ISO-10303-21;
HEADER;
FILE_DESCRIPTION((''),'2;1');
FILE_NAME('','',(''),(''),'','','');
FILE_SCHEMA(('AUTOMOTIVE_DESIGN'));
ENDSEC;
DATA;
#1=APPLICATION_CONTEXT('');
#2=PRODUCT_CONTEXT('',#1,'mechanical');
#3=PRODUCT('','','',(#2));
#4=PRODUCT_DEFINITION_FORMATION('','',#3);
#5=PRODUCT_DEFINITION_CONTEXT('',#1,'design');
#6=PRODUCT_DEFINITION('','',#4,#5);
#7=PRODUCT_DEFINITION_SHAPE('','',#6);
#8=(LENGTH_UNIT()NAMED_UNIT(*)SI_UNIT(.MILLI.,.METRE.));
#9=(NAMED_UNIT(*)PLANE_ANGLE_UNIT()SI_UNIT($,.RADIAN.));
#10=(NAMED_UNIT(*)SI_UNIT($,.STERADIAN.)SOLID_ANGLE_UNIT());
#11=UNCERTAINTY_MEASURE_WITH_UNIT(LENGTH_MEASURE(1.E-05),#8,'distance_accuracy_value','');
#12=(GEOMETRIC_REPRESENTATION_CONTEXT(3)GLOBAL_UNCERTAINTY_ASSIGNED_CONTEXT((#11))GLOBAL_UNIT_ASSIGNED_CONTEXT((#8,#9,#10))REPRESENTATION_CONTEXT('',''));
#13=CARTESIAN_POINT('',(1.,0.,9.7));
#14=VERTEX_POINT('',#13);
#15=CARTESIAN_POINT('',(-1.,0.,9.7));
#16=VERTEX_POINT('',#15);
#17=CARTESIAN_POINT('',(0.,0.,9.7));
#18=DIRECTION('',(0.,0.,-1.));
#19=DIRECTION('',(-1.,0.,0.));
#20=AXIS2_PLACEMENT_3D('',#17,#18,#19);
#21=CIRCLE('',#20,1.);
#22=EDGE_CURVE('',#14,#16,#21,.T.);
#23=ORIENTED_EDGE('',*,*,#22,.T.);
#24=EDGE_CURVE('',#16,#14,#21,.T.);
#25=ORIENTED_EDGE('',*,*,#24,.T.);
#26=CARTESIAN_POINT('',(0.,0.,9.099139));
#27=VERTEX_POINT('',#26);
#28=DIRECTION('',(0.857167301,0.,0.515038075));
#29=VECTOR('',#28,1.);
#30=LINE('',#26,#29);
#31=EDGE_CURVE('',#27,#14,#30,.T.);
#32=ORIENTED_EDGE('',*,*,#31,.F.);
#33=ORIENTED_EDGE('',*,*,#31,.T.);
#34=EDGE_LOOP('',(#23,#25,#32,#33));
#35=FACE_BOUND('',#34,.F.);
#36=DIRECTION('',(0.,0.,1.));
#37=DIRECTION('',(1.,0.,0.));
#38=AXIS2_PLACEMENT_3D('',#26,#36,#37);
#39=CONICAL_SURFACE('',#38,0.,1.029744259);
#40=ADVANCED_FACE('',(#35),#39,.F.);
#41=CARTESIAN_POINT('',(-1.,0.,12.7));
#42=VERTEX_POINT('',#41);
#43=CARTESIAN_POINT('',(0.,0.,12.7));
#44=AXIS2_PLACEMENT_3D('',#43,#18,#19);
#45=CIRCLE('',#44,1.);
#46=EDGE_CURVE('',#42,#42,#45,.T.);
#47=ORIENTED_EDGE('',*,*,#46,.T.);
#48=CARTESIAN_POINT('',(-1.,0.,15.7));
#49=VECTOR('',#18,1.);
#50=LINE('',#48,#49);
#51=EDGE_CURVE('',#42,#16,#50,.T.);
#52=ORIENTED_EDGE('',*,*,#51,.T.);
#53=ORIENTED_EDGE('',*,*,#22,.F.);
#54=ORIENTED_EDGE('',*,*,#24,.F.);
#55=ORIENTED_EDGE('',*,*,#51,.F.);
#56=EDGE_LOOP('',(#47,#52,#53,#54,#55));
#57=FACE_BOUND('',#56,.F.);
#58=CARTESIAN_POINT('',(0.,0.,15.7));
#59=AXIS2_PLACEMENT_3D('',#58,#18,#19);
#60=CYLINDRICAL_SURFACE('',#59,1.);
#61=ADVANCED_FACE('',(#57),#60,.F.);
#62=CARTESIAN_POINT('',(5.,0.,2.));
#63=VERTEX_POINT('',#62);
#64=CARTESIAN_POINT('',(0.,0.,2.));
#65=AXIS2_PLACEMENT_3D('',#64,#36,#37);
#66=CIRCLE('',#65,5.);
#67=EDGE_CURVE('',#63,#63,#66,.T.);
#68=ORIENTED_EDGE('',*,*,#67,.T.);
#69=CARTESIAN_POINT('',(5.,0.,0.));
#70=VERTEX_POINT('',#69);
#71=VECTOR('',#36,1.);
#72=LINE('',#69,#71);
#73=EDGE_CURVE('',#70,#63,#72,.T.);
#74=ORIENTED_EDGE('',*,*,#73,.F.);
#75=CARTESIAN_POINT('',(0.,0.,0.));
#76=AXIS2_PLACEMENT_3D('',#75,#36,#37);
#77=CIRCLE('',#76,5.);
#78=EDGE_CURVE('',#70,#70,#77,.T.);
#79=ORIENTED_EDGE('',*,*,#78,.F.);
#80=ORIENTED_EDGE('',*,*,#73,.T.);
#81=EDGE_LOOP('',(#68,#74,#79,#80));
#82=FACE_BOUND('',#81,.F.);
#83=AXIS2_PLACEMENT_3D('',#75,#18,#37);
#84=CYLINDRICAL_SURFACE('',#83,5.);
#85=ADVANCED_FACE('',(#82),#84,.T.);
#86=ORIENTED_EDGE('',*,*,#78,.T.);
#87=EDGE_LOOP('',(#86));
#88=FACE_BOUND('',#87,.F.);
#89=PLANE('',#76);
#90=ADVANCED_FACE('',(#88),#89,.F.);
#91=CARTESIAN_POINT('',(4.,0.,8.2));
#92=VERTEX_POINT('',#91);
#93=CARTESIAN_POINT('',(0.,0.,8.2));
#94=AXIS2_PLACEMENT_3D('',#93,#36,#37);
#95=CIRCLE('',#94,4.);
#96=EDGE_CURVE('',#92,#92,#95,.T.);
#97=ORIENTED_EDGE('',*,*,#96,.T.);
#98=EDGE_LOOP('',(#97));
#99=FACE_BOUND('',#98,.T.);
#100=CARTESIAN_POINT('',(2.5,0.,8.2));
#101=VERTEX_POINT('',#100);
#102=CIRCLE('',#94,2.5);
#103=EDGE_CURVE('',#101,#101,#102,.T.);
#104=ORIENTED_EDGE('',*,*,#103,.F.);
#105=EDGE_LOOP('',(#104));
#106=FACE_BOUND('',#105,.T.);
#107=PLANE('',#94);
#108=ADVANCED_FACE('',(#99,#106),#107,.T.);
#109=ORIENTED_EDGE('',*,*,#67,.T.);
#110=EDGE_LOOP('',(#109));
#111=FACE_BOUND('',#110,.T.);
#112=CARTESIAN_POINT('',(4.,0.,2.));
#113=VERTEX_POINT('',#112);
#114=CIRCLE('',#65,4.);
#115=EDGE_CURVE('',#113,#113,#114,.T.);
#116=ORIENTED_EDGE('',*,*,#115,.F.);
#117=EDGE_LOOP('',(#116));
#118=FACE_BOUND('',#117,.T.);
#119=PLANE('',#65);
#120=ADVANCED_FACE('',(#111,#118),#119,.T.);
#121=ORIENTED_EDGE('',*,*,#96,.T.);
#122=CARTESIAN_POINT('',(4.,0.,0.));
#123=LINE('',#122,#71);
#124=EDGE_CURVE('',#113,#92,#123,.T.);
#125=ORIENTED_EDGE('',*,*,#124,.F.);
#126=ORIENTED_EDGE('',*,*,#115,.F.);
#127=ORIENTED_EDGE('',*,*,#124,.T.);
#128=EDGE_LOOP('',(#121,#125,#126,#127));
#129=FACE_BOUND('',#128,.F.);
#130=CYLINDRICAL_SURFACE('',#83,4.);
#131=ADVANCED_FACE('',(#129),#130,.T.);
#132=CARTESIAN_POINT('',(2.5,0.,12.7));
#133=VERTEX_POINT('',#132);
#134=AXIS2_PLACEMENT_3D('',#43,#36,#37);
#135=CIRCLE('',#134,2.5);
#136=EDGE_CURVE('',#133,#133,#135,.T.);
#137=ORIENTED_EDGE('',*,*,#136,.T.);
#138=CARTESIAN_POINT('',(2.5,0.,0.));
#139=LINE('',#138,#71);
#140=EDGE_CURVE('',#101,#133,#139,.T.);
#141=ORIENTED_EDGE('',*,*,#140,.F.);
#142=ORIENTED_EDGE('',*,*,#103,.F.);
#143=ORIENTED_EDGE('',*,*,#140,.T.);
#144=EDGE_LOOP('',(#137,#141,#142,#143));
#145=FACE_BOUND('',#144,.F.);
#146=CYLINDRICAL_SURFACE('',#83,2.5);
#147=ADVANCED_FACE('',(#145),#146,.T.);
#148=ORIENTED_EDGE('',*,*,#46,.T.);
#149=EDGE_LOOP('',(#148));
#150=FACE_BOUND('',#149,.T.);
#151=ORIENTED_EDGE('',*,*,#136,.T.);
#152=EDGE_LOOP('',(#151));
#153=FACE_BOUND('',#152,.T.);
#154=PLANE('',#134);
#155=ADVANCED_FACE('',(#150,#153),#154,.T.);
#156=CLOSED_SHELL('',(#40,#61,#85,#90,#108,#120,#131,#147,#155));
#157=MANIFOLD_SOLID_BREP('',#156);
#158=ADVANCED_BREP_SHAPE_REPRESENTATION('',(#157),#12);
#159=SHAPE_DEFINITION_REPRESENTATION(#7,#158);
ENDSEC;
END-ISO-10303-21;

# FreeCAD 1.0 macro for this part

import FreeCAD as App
import Part
import Sketcher

doc = App.newDocument("Part")
params = doc.addObject("Spreadsheet::Sheet", "Params")
for row, (alias, value) in enumerate([
    ("sketch1_diameter", "5 mm"),
    ("pad1_length", "12.7 mm"),
    ("sketch2_diameter", "8 mm"),
    ("sketch2_diameter2", "5 mm"),
    ("pad2_length", "8.2 mm"),
    ("sketch3_diameter", "10 mm"),
    ("sketch3_diameter2", "8 mm"),
    ("pad3_length", "2 mm"),
    ("sketch4_diameter", "2 mm"),
    ("hole_diameter", "2 mm"),
    ("hole_depth", "3 mm"),
], start=1):
    params.set(f"A{row}", alias)
    params.set(f"B{row}", "=" + value)
    params.setAlias(f"B{row}", alias)

body = doc.addObject("PartDesign::Body", "Body")

# Sketch on XY plane
sketch1 = body.newObject("Sketcher::SketchObject", "Sketch")
sketch1.AttachmentSupport = (doc.getObject("XY_Plane"), [""])
sketch1.MapMode = "FlatFace"
sketch1.addGeometry(Part.Circle(App.Vector(0, 0, 0), App.Vector(0, 0, 1), 2.5), False)
sketch1.addConstraint(Sketcher.Constraint("Coincident", 0, 3, -1, 1))
sketch1.addConstraint(Sketcher.Constraint("Diameter", 0, 5.0))
sketch1.setExpression("Constraints[1]", "Params.sketch1_diameter")
pad1 = body.newObject("PartDesign::Pad", "Pad")
pad1.Profile = sketch1
pad1.setExpression("Length", "Params.pad1_length")

# Sketch on XY plane
sketch2 = body.newObject("Sketcher::SketchObject", "Sketch001")
sketch2.AttachmentSupport = (doc.getObject("XY_Plane"), [""])
sketch2.MapMode = "FlatFace"
sketch2.addGeometry(Part.Circle(App.Vector(0, 0, 0), App.Vector(0, 0, 1), 4), False)
sketch2.addGeometry(Part.Circle(App.Vector(0, 0, 0), App.Vector(0, 0, 1), 2.5), False)
sketch2.addConstraint(Sketcher.Constraint("Coincident", 0, 3, -1, 1))
sketch2.addConstraint(Sketcher.Constraint("Coincident", 1, 3, -1, 1))
sketch2.addConstraint(Sketcher.Constraint("Diameter", 0, 8.0))
sketch2.addConstraint(Sketcher.Constraint("Diameter", 1, 5.0))
sketch2.setExpression("Constraints[2]", "Params.sketch2_diameter")
sketch2.setExpression("Constraints[3]", "Params.sketch2_diameter2")
pad2 = body.newObject("PartDesign::Pad", "Pad001")
pad2.Profile = sketch2
pad2.setExpression("Length", "Params.pad2_length")

# Sketch on XY plane
sketch3 = body.newObject("Sketcher::SketchObject", "Sketch002")
sketch3.AttachmentSupport = (doc.getObject("XY_Plane"), [""])
sketch3.MapMode = "FlatFace"
sketch3.addGeometry(Part.Circle(App.Vector(0, 0, 0), App.Vector(0, 0, 1), 5), False)
sketch3.addGeometry(Part.Circle(App.Vector(0, 0, 0), App.Vector(0, 0, 1), 4), False)
sketch3.addConstraint(Sketcher.Constraint("Coincident", 0, 3, -1, 1))
sketch3.addConstraint(Sketcher.Constraint("Coincident", 1, 3, -1, 1))
sketch3.addConstraint(Sketcher.Constraint("Diameter", 0, 10.0))
sketch3.addConstraint(Sketcher.Constraint("Diameter", 1, 8.0))
sketch3.setExpression("Constraints[2]", "Params.sketch3_diameter")
sketch3.setExpression("Constraints[3]", "Params.sketch3_diameter2")
pad3 = body.newObject("PartDesign::Pad", "Pad002")
pad3.Profile = sketch3
pad3.setExpression("Length", "Params.pad3_length")

# Sketch on XY plane
sketch4 = body.newObject("Sketcher::SketchObject", "Sketch003")
sketch4.AttachmentSupport = (doc.getObject("XY_Plane"), [""])
sketch4.MapMode = "FlatFace"
sketch4.AttachmentOffset = App.Placement(App.Vector(0, 0, 12.7), App.Rotation())
sketch4.addGeometry(Part.Circle(App.Vector(0, 0, 0), App.Vector(0, 0, 1), 1), False)
sketch4.addConstraint(Sketcher.Constraint("Coincident", 0, 3, -1, 1))
sketch4.addConstraint(Sketcher.Constraint("Diameter", 0, 2.0))
sketch4.setExpression("Constraints[1]", "Params.sketch4_diameter")
doc.recompute()
hole = body.newObject("PartDesign::Hole", "Hole")
hole.Profile = sketch4
hole.ThreadType = "None"
hole.setExpression("Diameter", "Params.hole_diameter")
hole.DepthType = "Dimension"
hole.setExpression("Depth", "Params.hole_depth")
hole.DrillPoint = "Angled"
hole.DrillPointAngle = 118

doc.recompute()
